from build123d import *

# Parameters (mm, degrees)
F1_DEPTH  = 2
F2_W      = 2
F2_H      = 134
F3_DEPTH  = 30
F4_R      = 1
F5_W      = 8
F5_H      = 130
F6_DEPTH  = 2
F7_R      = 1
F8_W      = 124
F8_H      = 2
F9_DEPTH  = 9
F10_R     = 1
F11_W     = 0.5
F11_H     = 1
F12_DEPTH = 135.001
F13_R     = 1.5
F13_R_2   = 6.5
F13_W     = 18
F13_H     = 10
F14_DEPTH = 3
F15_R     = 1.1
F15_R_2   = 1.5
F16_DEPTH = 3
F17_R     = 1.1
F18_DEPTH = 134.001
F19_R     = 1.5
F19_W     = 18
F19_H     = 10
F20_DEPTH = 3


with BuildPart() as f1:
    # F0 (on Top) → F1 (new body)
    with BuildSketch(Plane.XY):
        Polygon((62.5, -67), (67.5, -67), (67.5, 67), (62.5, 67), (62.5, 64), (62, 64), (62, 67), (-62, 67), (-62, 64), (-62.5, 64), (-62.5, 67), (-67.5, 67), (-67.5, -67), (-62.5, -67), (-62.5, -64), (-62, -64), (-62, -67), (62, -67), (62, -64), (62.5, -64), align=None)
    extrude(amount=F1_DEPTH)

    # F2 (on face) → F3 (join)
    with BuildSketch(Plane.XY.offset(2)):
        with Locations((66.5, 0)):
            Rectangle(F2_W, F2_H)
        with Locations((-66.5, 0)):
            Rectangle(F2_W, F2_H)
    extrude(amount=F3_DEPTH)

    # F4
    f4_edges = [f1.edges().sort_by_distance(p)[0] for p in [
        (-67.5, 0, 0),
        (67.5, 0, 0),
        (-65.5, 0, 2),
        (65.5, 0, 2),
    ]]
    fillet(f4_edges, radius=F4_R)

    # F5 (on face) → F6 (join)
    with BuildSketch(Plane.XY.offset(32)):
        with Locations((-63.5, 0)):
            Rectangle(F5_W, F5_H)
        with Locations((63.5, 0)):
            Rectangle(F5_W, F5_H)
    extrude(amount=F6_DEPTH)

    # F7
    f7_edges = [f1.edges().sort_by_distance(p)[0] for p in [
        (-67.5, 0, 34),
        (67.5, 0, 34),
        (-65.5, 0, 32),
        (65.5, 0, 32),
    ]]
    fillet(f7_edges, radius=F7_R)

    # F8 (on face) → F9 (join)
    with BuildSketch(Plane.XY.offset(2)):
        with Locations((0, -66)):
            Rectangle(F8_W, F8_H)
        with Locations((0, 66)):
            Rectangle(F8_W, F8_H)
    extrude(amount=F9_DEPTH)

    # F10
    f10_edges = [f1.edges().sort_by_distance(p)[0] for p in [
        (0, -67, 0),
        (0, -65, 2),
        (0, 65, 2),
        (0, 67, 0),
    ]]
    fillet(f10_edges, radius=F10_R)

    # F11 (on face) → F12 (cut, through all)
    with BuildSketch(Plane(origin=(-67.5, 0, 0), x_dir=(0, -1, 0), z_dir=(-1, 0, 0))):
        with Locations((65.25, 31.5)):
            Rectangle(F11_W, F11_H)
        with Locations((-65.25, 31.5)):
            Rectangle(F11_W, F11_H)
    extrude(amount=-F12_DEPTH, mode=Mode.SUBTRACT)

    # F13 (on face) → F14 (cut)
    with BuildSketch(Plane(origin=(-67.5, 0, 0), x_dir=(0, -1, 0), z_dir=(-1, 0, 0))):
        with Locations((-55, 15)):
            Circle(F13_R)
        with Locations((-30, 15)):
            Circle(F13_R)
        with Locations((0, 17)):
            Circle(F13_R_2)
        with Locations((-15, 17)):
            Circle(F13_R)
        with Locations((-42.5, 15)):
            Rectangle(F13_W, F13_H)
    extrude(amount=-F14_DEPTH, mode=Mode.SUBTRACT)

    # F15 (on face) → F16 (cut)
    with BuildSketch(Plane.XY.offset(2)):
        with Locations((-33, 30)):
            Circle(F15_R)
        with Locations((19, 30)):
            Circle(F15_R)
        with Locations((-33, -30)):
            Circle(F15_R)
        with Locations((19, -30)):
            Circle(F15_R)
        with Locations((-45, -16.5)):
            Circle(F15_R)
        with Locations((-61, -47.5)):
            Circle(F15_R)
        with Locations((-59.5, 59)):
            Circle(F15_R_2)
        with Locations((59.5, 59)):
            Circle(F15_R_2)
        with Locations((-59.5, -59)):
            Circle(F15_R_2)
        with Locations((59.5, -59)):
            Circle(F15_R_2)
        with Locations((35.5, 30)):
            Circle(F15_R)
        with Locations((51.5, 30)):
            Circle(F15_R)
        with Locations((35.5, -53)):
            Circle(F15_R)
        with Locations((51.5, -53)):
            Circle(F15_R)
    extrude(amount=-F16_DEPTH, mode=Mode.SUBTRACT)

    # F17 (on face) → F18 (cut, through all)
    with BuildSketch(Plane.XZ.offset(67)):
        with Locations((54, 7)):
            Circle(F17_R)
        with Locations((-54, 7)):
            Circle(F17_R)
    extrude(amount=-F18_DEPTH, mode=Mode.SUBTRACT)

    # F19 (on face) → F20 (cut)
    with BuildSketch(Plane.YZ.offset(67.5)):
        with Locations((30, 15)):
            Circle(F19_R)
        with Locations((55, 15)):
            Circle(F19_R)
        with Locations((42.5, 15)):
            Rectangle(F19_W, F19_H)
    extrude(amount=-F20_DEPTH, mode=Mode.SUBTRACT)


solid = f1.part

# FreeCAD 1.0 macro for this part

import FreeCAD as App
import Part
import Sketcher
from FreeCAD import Vector


def edges_at(feature, points):
    """Names of the edges that pass closest to the given points."""
    edges = feature.Shape.Edges
    near = lambda p: min(range(len(edges)), key=lambda i: edges[i].distToShape(Part.Vertex(*p))[0])
    return sorted({f"Edge{near(p) + 1}" for p in points})

doc = App.newDocument("Part")
body = doc.addObject("PartDesign::Body", "Body")

sketch1 = doc.addObject("Sketcher::SketchObject", "Sketch")
body.addObject(sketch1)
sketch1.AttachmentSupport = (doc.XY_Plane, [""])
sketch1.MapMode = "FlatFace"
sketch1.addGeometry([
    Part.LineSegment(Vector(62.5, -67, 0), Vector(67.5, -67, 0)),
    Part.LineSegment(Vector(67.5, -67, 0), Vector(67.5, 67, 0)),
    Part.LineSegment(Vector(67.5, 67, 0), Vector(62.5, 67, 0)),
    Part.LineSegment(Vector(62.5, 67, 0), Vector(62.5, 64, 0)),
    Part.LineSegment(Vector(62.5, 64, 0), Vector(62, 64, 0)),
    Part.LineSegment(Vector(62, 64, 0), Vector(62, 67, 0)),
    Part.LineSegment(Vector(62, 67, 0), Vector(-62, 67, 0)),
    Part.LineSegment(Vector(-62, 67, 0), Vector(-62, 64, 0)),
    Part.LineSegment(Vector(-62, 64, 0), Vector(-62.5, 64, 0)),
    Part.LineSegment(Vector(-62.5, 64, 0), Vector(-62.5, 67, 0)),
    Part.LineSegment(Vector(-62.5, 67, 0), Vector(-67.5, 67, 0)),
    Part.LineSegment(Vector(-67.5, 67, 0), Vector(-67.5, -67, 0)),
    Part.LineSegment(Vector(-67.5, -67, 0), Vector(-62.5, -67, 0)),
    Part.LineSegment(Vector(-62.5, -67, 0), Vector(-62.5, -64, 0)),
    Part.LineSegment(Vector(-62.5, -64, 0), Vector(-62, -64, 0)),
    Part.LineSegment(Vector(-62, -64, 0), Vector(-62, -67, 0)),
    Part.LineSegment(Vector(-62, -67, 0), Vector(62, -67, 0)),
    Part.LineSegment(Vector(62, -67, 0), Vector(62, -64, 0)),
    Part.LineSegment(Vector(62, -64, 0), Vector(62.5, -64, 0)),
    Part.LineSegment(Vector(62.5, -64, 0), Vector(62.5, -67, 0)),
], False)
sketch1.addConstraint([
    Sketcher.Constraint("Coincident", 0, 2, 1, 1),
    Sketcher.Constraint("Coincident", 1, 2, 2, 1),
    Sketcher.Constraint("Coincident", 2, 2, 3, 1),
    Sketcher.Constraint("Coincident", 3, 2, 4, 1),
    Sketcher.Constraint("Coincident", 4, 2, 5, 1),
    Sketcher.Constraint("Coincident", 5, 2, 6, 1),
    Sketcher.Constraint("Coincident", 6, 2, 7, 1),
    Sketcher.Constraint("Coincident", 7, 2, 8, 1),
    Sketcher.Constraint("Coincident", 8, 2, 9, 1),
    Sketcher.Constraint("Coincident", 9, 2, 10, 1),
    Sketcher.Constraint("Coincident", 10, 2, 11, 1),
    Sketcher.Constraint("Coincident", 11, 2, 12, 1),
    Sketcher.Constraint("Coincident", 12, 2, 13, 1),
    Sketcher.Constraint("Coincident", 13, 2, 14, 1),
    Sketcher.Constraint("Coincident", 14, 2, 15, 1),
    Sketcher.Constraint("Coincident", 15, 2, 16, 1),
    Sketcher.Constraint("Coincident", 16, 2, 17, 1),
    Sketcher.Constraint("Coincident", 17, 2, 18, 1),
    Sketcher.Constraint("Coincident", 18, 2, 19, 1),
    Sketcher.Constraint("Coincident", 19, 2, 0, 1),
    Sketcher.Constraint("Horizontal", 0),
    Sketcher.Constraint("Vertical", 1),
    Sketcher.Constraint("Horizontal", 2),
    Sketcher.Constraint("Vertical", 3),
    Sketcher.Constraint("Horizontal", 4),
    Sketcher.Constraint("Vertical", 5),
    Sketcher.Constraint("Horizontal", 6),
    Sketcher.Constraint("Vertical", 7),
    Sketcher.Constraint("Horizontal", 8),
    Sketcher.Constraint("Vertical", 9),
    Sketcher.Constraint("Horizontal", 10),
    Sketcher.Constraint("Vertical", 11),
    Sketcher.Constraint("Horizontal", 12),
    Sketcher.Constraint("Vertical", 13),
    Sketcher.Constraint("Horizontal", 14),
    Sketcher.Constraint("Vertical", 15),
    Sketcher.Constraint("Horizontal", 16),
    Sketcher.Constraint("Vertical", 17),
    Sketcher.Constraint("Horizontal", 18),
    Sketcher.Constraint("Vertical", 19),
    Sketcher.Constraint("Symmetric", 0, 2, 10, 2, -1, 1),
    Sketcher.Constraint("Symmetric", 2, 2, 12, 2, -1, 1),
    Sketcher.Constraint("Symmetric", 4, 2, 14, 2, -1, 1),
    Sketcher.Constraint("Symmetric", 6, 2, 16, 2, -1, 1),
    Sketcher.Constraint("Symmetric", 8, 2, 18, 2, -1, 1),
    Sketcher.Constraint("Symmetric", 4, 2, 7, 2, -2),
    Sketcher.Constraint("Symmetric", 2, 2, 9, 2, -2),
    Sketcher.Constraint("Horizontal", 2, 2, 5, 2),
    Sketcher.Constraint("DistanceX", 0, 1, 0, 2, 5.0),
    Sketcher.Constraint("DistanceX", 6, 2, 6, 1, 124.0),
    Sketcher.Constraint("DistanceY", 1, 1, 1, 2, 134.0),
    Sketcher.Constraint("DistanceY", 3, 2, 3, 1, 3.0),
    Sketcher.Constraint("DistanceX", 4, 2, 4, 1, 0.5),
])
pad1 = doc.addObject("PartDesign::Pad", "Pad")
body.addObject(pad1)
pad1.Profile = sketch1
pad1.Length = 2

sketch2 = doc.addObject("Sketcher::SketchObject", "Sketch001")
body.addObject(sketch2)
sketch2.AttachmentSupport = (doc.XY_Plane, [""])
sketch2.MapMode = "FlatFace"
sketch2.AttachmentOffset = App.Placement(Vector(0, 0, 2), App.Rotation())
sketch2.addGeometry([
    Part.LineSegment(Vector(65.5, 67, 0), Vector(65.5, -67, 0)),
    Part.LineSegment(Vector(65.5, -67, 0), Vector(67.5, -67, 0)),
    Part.LineSegment(Vector(67.5, -67, 0), Vector(67.5, 67, 0)),
    Part.LineSegment(Vector(67.5, 67, 0), Vector(65.5, 67, 0)),
    Part.LineSegment(Vector(-67.5, 67, 0), Vector(-67.5, -67, 0)),
    Part.LineSegment(Vector(-67.5, -67, 0), Vector(-65.5, -67, 0)),
    Part.LineSegment(Vector(-65.5, -67, 0), Vector(-65.5, 67, 0)),
    Part.LineSegment(Vector(-65.5, 67, 0), Vector(-67.5, 67, 0)),
], False)
sketch2.addConstraint([
    Sketcher.Constraint("Coincident", 0, 2, 1, 1),
    Sketcher.Constraint("Coincident", 1, 2, 2, 1),
    Sketcher.Constraint("Coincident", 2, 2, 3, 1),
    Sketcher.Constraint("Coincident", 3, 2, 0, 1),
    Sketcher.Constraint("Coincident", 4, 2, 5, 1),
    Sketcher.Constraint("Coincident", 5, 2, 6, 1),
    Sketcher.Constraint("Coincident", 6, 2, 7, 1),
    Sketcher.Constraint("Coincident", 7, 2, 4, 1),
    Sketcher.Constraint("Vertical", 0),
    Sketcher.Constraint("Horizontal", 1),
    Sketcher.Constraint("Vertical", 2),
    Sketcher.Constraint("Horizontal", 3),
    Sketcher.Constraint("Vertical", 4),
    Sketcher.Constraint("Horizontal", 5),
    Sketcher.Constraint("Vertical", 6),
    Sketcher.Constraint("Horizontal", 7),
    Sketcher.Constraint("Symmetric", 2, 2, 4, 2, -1, 1),
    Sketcher.Constraint("Symmetric", 0, 2, 6, 2, -1, 1),
    Sketcher.Constraint("Horizontal", 1, 2, 4, 2),
    Sketcher.Constraint("DistanceX", 1, 1, 1, 2, 2.0),
    Sketcher.Constraint("DistanceY", 0, 2, 0, 1, 134.0),
    Sketcher.Constraint("DistanceX", 4, 2, 0, 2, 133.0),
])
pad2 = doc.addObject("PartDesign::Pad", "Pad001")
body.addObject(pad2)
pad2.Profile = sketch2
pad2.Length = 30
doc.recompute()

fillet = doc.addObject("PartDesign::Fillet", "Fillet")
body.addObject(fillet)
fillet.Base = (pad2, edges_at(pad2, [
    (-67.5, 0, 0),
    (67.5, 0, 0),
    (-65.5, 0, 2),
    (65.5, 0, 2),
]))
fillet.Radius = 1

sketch3 = doc.addObject("Sketcher::SketchObject", "Sketch002")
body.addObject(sketch3)
sketch3.AttachmentSupport = (doc.XY_Plane, [""])
sketch3.MapMode = "FlatFace"
sketch3.AttachmentOffset = App.Placement(Vector(0, 0, 32), App.Rotation())
sketch3.addGeometry([
    Part.LineSegment(Vector(-67.5, 65, 0), Vector(-67.5, -65, 0)),
    Part.LineSegment(Vector(-67.5, -65, 0), Vector(-59.5, -65, 0)),
    Part.LineSegment(Vector(-59.5, -65, 0), Vector(-59.5, 65, 0)),
    Part.LineSegment(Vector(-59.5, 65, 0), Vector(-67.5, 65, 0)),
    Part.LineSegment(Vector(59.5, 65, 0), Vector(59.5, -65, 0)),
    Part.LineSegment(Vector(59.5, -65, 0), Vector(67.5, -65, 0)),
    Part.LineSegment(Vector(67.5, -65, 0), Vector(67.5, 65, 0)),
    Part.LineSegment(Vector(67.5, 65, 0), Vector(59.5, 65, 0)),
], False)
sketch3.addConstraint([
    Sketcher.Constraint("Coincident", 0, 2, 1, 1),
    Sketcher.Constraint("Coincident", 1, 2, 2, 1),
    Sketcher.Constraint("Coincident", 2, 2, 3, 1),
    Sketcher.Constraint("Coincident", 3, 2, 0, 1),
    Sketcher.Constraint("Coincident", 4, 2, 5, 1),
    Sketcher.Constraint("Coincident", 5, 2, 6, 1),
    Sketcher.Constraint("Coincident", 6, 2, 7, 1),
    Sketcher.Constraint("Coincident", 7, 2, 4, 1),
    Sketcher.Constraint("Vertical", 0),
    Sketcher.Constraint("Horizontal", 1),
    Sketcher.Constraint("Vertical", 2),
    Sketcher.Constraint("Horizontal", 3),
    Sketcher.Constraint("Vertical", 4),
    Sketcher.Constraint("Horizontal", 5),
    Sketcher.Constraint("Vertical", 6),
    Sketcher.Constraint("Horizontal", 7),
    Sketcher.Constraint("Symmetric", 2, 2, 4, 2, -1, 1),
    Sketcher.Constraint("Symmetric", 0, 2, 6, 2, -1, 1),
    Sketcher.Constraint("Horizontal", 1, 2, 4, 2),
    Sketcher.Constraint("DistanceX", 1, 1, 1, 2, 8.0),
    Sketcher.Constraint("DistanceY", 0, 2, 0, 1, 130.0),
    Sketcher.Constraint("DistanceX", 1, 2, 4, 2, 119.0),
])
pad3 = doc.addObject("PartDesign::Pad", "Pad002")
body.addObject(pad3)
pad3.Profile = sketch3
pad3.Length = 2
doc.recompute()

fillet2 = doc.addObject("PartDesign::Fillet", "Fillet001")
body.addObject(fillet2)
fillet2.Base = (pad3, edges_at(pad3, [
    (-67.5, 0, 34),
    (67.5, 0, 34),
    (-65.5, 0, 32),
    (65.5, 0, 32),
]))
fillet2.Radius = 1

sketch4 = doc.addObject("Sketcher::SketchObject", "Sketch003")
body.addObject(sketch4)
sketch4.AttachmentSupport = (doc.XY_Plane, [""])
sketch4.MapMode = "FlatFace"
sketch4.AttachmentOffset = App.Placement(Vector(0, 0, 2), App.Rotation())
sketch4.addGeometry([
    Part.LineSegment(Vector(-62, -65, 0), Vector(-62, -67, 0)),
    Part.LineSegment(Vector(-62, -67, 0), Vector(62, -67, 0)),
    Part.LineSegment(Vector(62, -67, 0), Vector(62, -65, 0)),
    Part.LineSegment(Vector(62, -65, 0), Vector(-62, -65, 0)),
    Part.LineSegment(Vector(-62, 67, 0), Vector(-62, 65, 0)),
    Part.LineSegment(Vector(-62, 65, 0), Vector(62, 65, 0)),
    Part.LineSegment(Vector(62, 65, 0), Vector(62, 67, 0)),
    Part.LineSegment(Vector(62, 67, 0), Vector(-62, 67, 0)),
], False)
sketch4.addConstraint([
    Sketcher.Constraint("Coincident", 0, 2, 1, 1),
    Sketcher.Constraint("Coincident", 1, 2, 2, 1),
    Sketcher.Constraint("Coincident", 2, 2, 3, 1),
    Sketcher.Constraint("Coincident", 3, 2, 0, 1),
    Sketcher.Constraint("Coincident", 4, 2, 5, 1),
    Sketcher.Constraint("Coincident", 5, 2, 6, 1),
    Sketcher.Constraint("Coincident", 6, 2, 7, 1),
    Sketcher.Constraint("Coincident", 7, 2, 4, 1),
    Sketcher.Constraint("Vertical", 0),
    Sketcher.Constraint("Horizontal", 1),
    Sketcher.Constraint("Vertical", 2),
    Sketcher.Constraint("Horizontal", 3),
    Sketcher.Constraint("Vertical", 4),
    Sketcher.Constraint("Horizontal", 5),
    Sketcher.Constraint("Vertical", 6),
    Sketcher.Constraint("Horizontal", 7),
    Sketcher.Constraint("Symmetric", 2, 2, 4, 2, -1, 1),
    Sketcher.Constraint("Symmetric", 0, 2, 6, 2, -1, 1),
    Sketcher.Constraint("Vertical", 3, 2, 4, 2),
    Sketcher.Constraint("DistanceX", 1, 1, 1, 2, 124.0),
    Sketcher.Constraint("DistanceY", 0, 2, 0, 1, 2.0),
    Sketcher.Constraint("DistanceY", 0, 2, -1, 1, 67.0),
])
pad4 = doc.addObject("PartDesign::Pad", "Pad003")
body.addObject(pad4)
pad4.Profile = sketch4
pad4.Length = 9
doc.recompute()

fillet3 = doc.addObject("PartDesign::Fillet", "Fillet002")
body.addObject(fillet3)
fillet3.Base = (pad4, edges_at(pad4, [
    (0, -67, 0),
    (0, -65, 2),
    (0, 65, 2),
    (0, 67, 0),
]))
fillet3.Radius = 1

sketch5 = doc.addObject("Sketcher::SketchObject", "Sketch004")
body.addObject(sketch5)
sketch5.AttachmentSupport = (doc.YZ_Plane, [""])
sketch5.MapMode = "FlatFace"
sketch5.AttachmentOffset = App.Placement(Vector(0, 0, -67.5), App.Rotation())
sketch5.addGeometry([
    Part.LineSegment(Vector(-65, 32, 0), Vector(-65, 31, 0)),
    Part.LineSegment(Vector(-65, 31, 0), Vector(-65.5, 31, 0)),
    Part.LineSegment(Vector(-65.5, 31, 0), Vector(-65.5, 32, 0)),
    Part.LineSegment(Vector(-65.5, 32, 0), Vector(-65, 32, 0)),
    Part.LineSegment(Vector(65.5, 32, 0), Vector(65.5, 31, 0)),
    Part.LineSegment(Vector(65.5, 31, 0), Vector(65, 31, 0)),
    Part.LineSegment(Vector(65, 31, 0), Vector(65, 32, 0)),
    Part.LineSegment(Vector(65, 32, 0), Vector(65.5, 32, 0)),
], False)
sketch5.addConstraint([
    Sketcher.Constraint("Coincident", 0, 2, 1, 1),
    Sketcher.Constraint("Coincident", 1, 2, 2, 1),
    Sketcher.Constraint("Coincident", 2, 2, 3, 1),
    Sketcher.Constraint("Coincident", 3, 2, 0, 1),
    Sketcher.Constraint("Coincident", 4, 2, 5, 1),
    Sketcher.Constraint("Coincident", 5, 2, 6, 1),
    Sketcher.Constraint("Coincident", 6, 2, 7, 1),
    Sketcher.Constraint("Coincident", 7, 2, 4, 1),
    Sketcher.Constraint("Vertical", 0),
    Sketcher.Constraint("Horizontal", 1),
    Sketcher.Constraint("Vertical", 2),
    Sketcher.Constraint("Horizontal", 3),
    Sketcher.Constraint("Vertical", 4),
    Sketcher.Constraint("Horizontal", 5),
    Sketcher.Constraint("Vertical", 6),
    Sketcher.Constraint("Horizontal", 7),
    Sketcher.Constraint("Symmetric", 1, 2, 4, 2, -2),
    Sketcher.Constraint("Symmetric", 3, 2, 6, 2, -2),
    Sketcher.Constraint("DistanceY", 0, 2, 0, 1, 1.0),
    Sketcher.Constraint("DistanceX", 1, 2, 1, 1, 0.5),
    Sketcher.Constraint("DistanceX", 0, 2, -1, 1, 65.0),
    Sketcher.Constraint("DistanceY", -1, 1, 0, 2, 31.0),
])
pocket1 = doc.addObject("PartDesign::Pocket", "Pocket")
body.addObject(pocket1)
pocket1.Profile = sketch5
pocket1.Type = "ThroughAll"
pocket1.Reversed = True

sketch6 = doc.addObject("Sketcher::SketchObject", "Sketch005")
body.addObject(sketch6)
sketch6.AttachmentSupport = (doc.YZ_Plane, [""])
sketch6.MapMode = "FlatFace"
sketch6.AttachmentOffset = App.Placement(Vector(0, 0, -67.5), App.Rotation())
sketch6.addGeometry([
    Part.Circle(Vector(55, 15, 0), Vector(0, 0, 1), 1.5),
    Part.Circle(Vector(30, 15, 0), Vector(0, 0, 1), 1.5),
    Part.Circle(Vector(0, 17, 0), Vector(0, 0, 1), 6.5),
    Part.Circle(Vector(15, 17, 0), Vector(0, 0, 1), 1.5),
    Part.LineSegment(Vector(51.5, 20, 0), Vector(51.5, 10, 0)),
    Part.LineSegment(Vector(51.5, 10, 0), Vector(33.5, 10, 0)),
    Part.LineSegment(Vector(33.5, 10, 0), Vector(33.5, 20, 0)),
    Part.LineSegment(Vector(33.5, 20, 0), Vector(51.5, 20, 0)),
], False)
sketch6.addConstraint([
    Sketcher.Constraint("Coincident", 4, 2, 5, 1),
    Sketcher.Constraint("Coincident", 5, 2, 6, 1),
    Sketcher.Constraint("Coincident", 6, 2, 7, 1),
    Sketcher.Constraint("Coincident", 7, 2, 4, 1),
    Sketcher.Constraint("Vertical", 4),
    Sketcher.Constraint("Horizontal", 5),
    Sketcher.Constraint("Vertical", 6),
    Sketcher.Constraint("Horizontal", 7),
    Sketcher.Constraint("Equal", 0, 1),
    Sketcher.Constraint("Equal", 1, 3),
    Sketcher.Constraint("PointOnObject", 2, 3, -2),
    Sketcher.Constraint("Horizontal", 0, 3, 1, 3),
    Sketcher.Constraint("Horizontal", 2, 3, 3, 3),
    Sketcher.Constraint("Diameter", 0, 3.0),
    Sketcher.Constraint("Diameter", 2, 13.0),
    Sketcher.Constraint("DistanceX", 5, 2, 5, 1, 18.0),
    Sketcher.Constraint("DistanceY", 4, 2, 4, 1, 10.0),
    Sketcher.Constraint("DistanceX", -1, 1, 0, 3, 55.0),
    Sketcher.Constraint("DistanceY", -1, 1, 0, 3, 15.0),
    Sketcher.Constraint("DistanceX", -1, 1, 1, 3, 30.0),
    Sketcher.Constraint("DistanceY", -1, 1, 2, 3, 17.0),
    Sketcher.Constraint("DistanceX", -1, 1, 3, 3, 15.0),
    Sketcher.Constraint("DistanceY", -1, 1, 4, 2, 10.0),
    Sketcher.Constraint("DistanceX", -1, 1, 4, 2, 51.5),
])
pocket2 = doc.addObject("PartDesign::Pocket", "Pocket001")
body.addObject(pocket2)
pocket2.Profile = sketch6
pocket2.Length = 3
pocket2.Reversed = True

sketch7 = doc.addObject("Sketcher::SketchObject", "Sketch006")
body.addObject(sketch7)
sketch7.AttachmentSupport = (doc.XY_Plane, [""])
sketch7.MapMode = "FlatFace"
sketch7.AttachmentOffset = App.Placement(Vector(0, 0, 2), App.Rotation())
sketch7.addGeometry([
    Part.Circle(Vector(-33, 30, 0), Vector(0, 0, 1), 1.1),
    Part.Circle(Vector(19, 30, 0), Vector(0, 0, 1), 1.1),
    Part.Circle(Vector(-33, -30, 0), Vector(0, 0, 1), 1.1),
    Part.Circle(Vector(19, -30, 0), Vector(0, 0, 1), 1.1),
    Part.Circle(Vector(-45, -16.5, 0), Vector(0, 0, 1), 1.1),
    Part.Circle(Vector(-61, -47.5, 0), Vector(0, 0, 1), 1.1),
    Part.Circle(Vector(-59.5, 59, 0), Vector(0, 0, 1), 1.5),
    Part.Circle(Vector(59.5, 59, 0), Vector(0, 0, 1), 1.5),
    Part.Circle(Vector(-59.5, -59, 0), Vector(0, 0, 1), 1.5),
    Part.Circle(Vector(59.5, -59, 0), Vector(0, 0, 1), 1.5),
    Part.Circle(Vector(35.5, 30, 0), Vector(0, 0, 1), 1.1),
    Part.Circle(Vector(51.5, 30, 0), Vector(0, 0, 1), 1.1),
    Part.Circle(Vector(35.5, -53, 0), Vector(0, 0, 1), 1.1),
    Part.Circle(Vector(51.5, -53, 0), Vector(0, 0, 1), 1.1),
], False)
sketch7.addConstraint([
    Sketcher.Constraint("Equal", 0, 1),
    Sketcher.Constraint("Equal", 1, 2),
    Sketcher.Constraint("Equal", 2, 3),
    Sketcher.Constraint("Equal", 3, 4),
    Sketcher.Constraint("Equal", 4, 5),
    Sketcher.Constraint("Equal", 6, 7),
    Sketcher.Constraint("Equal", 7, 8),
    Sketcher.Constraint("Equal", 8, 9),
    Sketcher.Constraint("Equal", 5, 10),
    Sketcher.Constraint("Equal", 10, 11),
    Sketcher.Constraint("Equal", 11, 12),
    Sketcher.Constraint("Equal", 12, 13),
    Sketcher.Constraint("Symmetric", 7, 3, 8, 3, -1, 1),
    Sketcher.Constraint("Symmetric", 6, 3, 9, 3, -1, 1),
    Sketcher.Constraint("Symmetric", 6, 3, 7, 3, -2),
    Sketcher.Constraint("Symmetric", 0, 3, 2, 3, -1),
    Sketcher.Constraint("Symmetric", 1, 3, 3, 3, -1),
    Sketcher.Constraint("Horizontal", 0, 3, 1, 3),
    Sketcher.Constraint("Horizontal", 1, 3, 10, 3),
    Sketcher.Constraint("Horizontal", 10, 3, 11, 3),
    Sketcher.Constraint("Horizontal", 12, 3, 13, 3),
    Sketcher.Constraint("Vertical", 10, 3, 12, 3),
    Sketcher.Constraint("Vertical", 11, 3, 13, 3),
    Sketcher.Constraint("Diameter", 6, 3.0),
    Sketcher.Constraint("Diameter", 0, 2.2),
    Sketcher.Constraint("DistanceX", 0, 3, -1, 1, 33.0),
    Sketcher.Constraint("DistanceY", -1, 1, 0, 3, 30.0),
    Sketcher.Constraint("DistanceX", -1, 1, 1, 3, 19.0),
    Sketcher.Constraint("DistanceX", 4, 3, -1, 1, 45.0),
    Sketcher.Constraint("DistanceX", 5, 3, -1, 1, 61.0),
    Sketcher.Constraint("DistanceY", -1, 1, 6, 3, 59.0),
    Sketcher.Constraint("DistanceY", 12, 3, -1, 1, 53.0),
    Sketcher.Constraint("DistanceY", 5, 3, 4, 3, 31.0),
    Sketcher.Constraint("DistanceX", 6, 3, 7, 3, 119.0),
    Sketcher.Constraint("DistanceX", 10, 3, 7, 3, 24.0),
    Sketcher.Constraint("DistanceX", 10, 3, 11, 3, 16.0),
    Sketcher.Constraint("DistanceY", 4, 3, -1, 1, 16.5),
])
pocket3 = doc.addObject("PartDesign::Pocket", "Pocket002")
body.addObject(pocket3)
pocket3.Profile = sketch7
pocket3.Length = 3

sketch8 = doc.addObject("Sketcher::SketchObject", "Sketch007")
body.addObject(sketch8)
sketch8.AttachmentSupport = (doc.XZ_Plane, [""])
sketch8.MapMode = "FlatFace"
sketch8.AttachmentOffset = App.Placement(Vector(0, 0, 67), App.Rotation())
sketch8.addGeometry([
    Part.Circle(Vector(54, 7, 0), Vector(0, 0, 1), 1.1),
    Part.Circle(Vector(-54, 7, 0), Vector(0, 0, 1), 1.1),
], False)
sketch8.addConstraint([
    Sketcher.Constraint("Equal", 0, 1),
    Sketcher.Constraint("Symmetric", 0, 3, 1, 3, -2),
    Sketcher.Constraint("Diameter", 0, 2.2),
    Sketcher.Constraint("DistanceX", -1, 1, 0, 3, 54.0),
    Sketcher.Constraint("DistanceY", -1, 1, 0, 3, 7.0),
])
pocket4 = doc.addObject("PartDesign::Pocket", "Pocket003")
body.addObject(pocket4)
pocket4.Profile = sketch8
pocket4.Type = "ThroughAll"

sketch9 = doc.addObject("Sketcher::SketchObject", "Sketch008")
body.addObject(sketch9)
sketch9.AttachmentSupport = (doc.YZ_Plane, [""])
sketch9.MapMode = "FlatFace"
sketch9.AttachmentOffset = App.Placement(Vector(0, 0, 67.5), App.Rotation())
sketch9.addGeometry([
    Part.Circle(Vector(30, 15, 0), Vector(0, 0, 1), 1.5),
    Part.Circle(Vector(55, 15, 0), Vector(0, 0, 1), 1.5),
    Part.LineSegment(Vector(33.5, 20, 0), Vector(33.5, 10, 0)),
    Part.LineSegment(Vector(33.5, 10, 0), Vector(51.5, 10, 0)),
    Part.LineSegment(Vector(51.5, 10, 0), Vector(51.5, 20, 0)),
    Part.LineSegment(Vector(51.5, 20, 0), Vector(33.5, 20, 0)),
], False)
sketch9.addConstraint([
    Sketcher.Constraint("Coincident", 2, 2, 3, 1),
    Sketcher.Constraint("Coincident", 3, 2, 4, 1),
    Sketcher.Constraint("Coincident", 4, 2, 5, 1),
    Sketcher.Constraint("Coincident", 5, 2, 2, 1),
    Sketcher.Constraint("Vertical", 2),
    Sketcher.Constraint("Horizontal", 3),
    Sketcher.Constraint("Vertical", 4),
    Sketcher.Constraint("Horizontal", 5),
    Sketcher.Constraint("Equal", 0, 1),
    Sketcher.Constraint("Horizontal", 0, 3, 1, 3),
    Sketcher.Constraint("Diameter", 0, 3.0),
    Sketcher.Constraint("DistanceX", 3, 1, 3, 2, 18.0),
    Sketcher.Constraint("DistanceY", 2, 2, 2, 1, 10.0),
    Sketcher.Constraint("DistanceX", -1, 1, 0, 3, 30.0),
    Sketcher.Constraint("DistanceY", -1, 1, 0, 3, 15.0),
    Sketcher.Constraint("DistanceX", -1, 1, 1, 3, 55.0),
    Sketcher.Constraint("DistanceY", -1, 1, 2, 2, 10.0),
    Sketcher.Constraint("DistanceX", -1, 1, 2, 2, 33.5),
])
pocket5 = doc.addObject("PartDesign::Pocket", "Pocket004")
body.addObject(pocket5)
pocket5.Profile = sketch9
pocket5.Length = 3

doc.recompute()
